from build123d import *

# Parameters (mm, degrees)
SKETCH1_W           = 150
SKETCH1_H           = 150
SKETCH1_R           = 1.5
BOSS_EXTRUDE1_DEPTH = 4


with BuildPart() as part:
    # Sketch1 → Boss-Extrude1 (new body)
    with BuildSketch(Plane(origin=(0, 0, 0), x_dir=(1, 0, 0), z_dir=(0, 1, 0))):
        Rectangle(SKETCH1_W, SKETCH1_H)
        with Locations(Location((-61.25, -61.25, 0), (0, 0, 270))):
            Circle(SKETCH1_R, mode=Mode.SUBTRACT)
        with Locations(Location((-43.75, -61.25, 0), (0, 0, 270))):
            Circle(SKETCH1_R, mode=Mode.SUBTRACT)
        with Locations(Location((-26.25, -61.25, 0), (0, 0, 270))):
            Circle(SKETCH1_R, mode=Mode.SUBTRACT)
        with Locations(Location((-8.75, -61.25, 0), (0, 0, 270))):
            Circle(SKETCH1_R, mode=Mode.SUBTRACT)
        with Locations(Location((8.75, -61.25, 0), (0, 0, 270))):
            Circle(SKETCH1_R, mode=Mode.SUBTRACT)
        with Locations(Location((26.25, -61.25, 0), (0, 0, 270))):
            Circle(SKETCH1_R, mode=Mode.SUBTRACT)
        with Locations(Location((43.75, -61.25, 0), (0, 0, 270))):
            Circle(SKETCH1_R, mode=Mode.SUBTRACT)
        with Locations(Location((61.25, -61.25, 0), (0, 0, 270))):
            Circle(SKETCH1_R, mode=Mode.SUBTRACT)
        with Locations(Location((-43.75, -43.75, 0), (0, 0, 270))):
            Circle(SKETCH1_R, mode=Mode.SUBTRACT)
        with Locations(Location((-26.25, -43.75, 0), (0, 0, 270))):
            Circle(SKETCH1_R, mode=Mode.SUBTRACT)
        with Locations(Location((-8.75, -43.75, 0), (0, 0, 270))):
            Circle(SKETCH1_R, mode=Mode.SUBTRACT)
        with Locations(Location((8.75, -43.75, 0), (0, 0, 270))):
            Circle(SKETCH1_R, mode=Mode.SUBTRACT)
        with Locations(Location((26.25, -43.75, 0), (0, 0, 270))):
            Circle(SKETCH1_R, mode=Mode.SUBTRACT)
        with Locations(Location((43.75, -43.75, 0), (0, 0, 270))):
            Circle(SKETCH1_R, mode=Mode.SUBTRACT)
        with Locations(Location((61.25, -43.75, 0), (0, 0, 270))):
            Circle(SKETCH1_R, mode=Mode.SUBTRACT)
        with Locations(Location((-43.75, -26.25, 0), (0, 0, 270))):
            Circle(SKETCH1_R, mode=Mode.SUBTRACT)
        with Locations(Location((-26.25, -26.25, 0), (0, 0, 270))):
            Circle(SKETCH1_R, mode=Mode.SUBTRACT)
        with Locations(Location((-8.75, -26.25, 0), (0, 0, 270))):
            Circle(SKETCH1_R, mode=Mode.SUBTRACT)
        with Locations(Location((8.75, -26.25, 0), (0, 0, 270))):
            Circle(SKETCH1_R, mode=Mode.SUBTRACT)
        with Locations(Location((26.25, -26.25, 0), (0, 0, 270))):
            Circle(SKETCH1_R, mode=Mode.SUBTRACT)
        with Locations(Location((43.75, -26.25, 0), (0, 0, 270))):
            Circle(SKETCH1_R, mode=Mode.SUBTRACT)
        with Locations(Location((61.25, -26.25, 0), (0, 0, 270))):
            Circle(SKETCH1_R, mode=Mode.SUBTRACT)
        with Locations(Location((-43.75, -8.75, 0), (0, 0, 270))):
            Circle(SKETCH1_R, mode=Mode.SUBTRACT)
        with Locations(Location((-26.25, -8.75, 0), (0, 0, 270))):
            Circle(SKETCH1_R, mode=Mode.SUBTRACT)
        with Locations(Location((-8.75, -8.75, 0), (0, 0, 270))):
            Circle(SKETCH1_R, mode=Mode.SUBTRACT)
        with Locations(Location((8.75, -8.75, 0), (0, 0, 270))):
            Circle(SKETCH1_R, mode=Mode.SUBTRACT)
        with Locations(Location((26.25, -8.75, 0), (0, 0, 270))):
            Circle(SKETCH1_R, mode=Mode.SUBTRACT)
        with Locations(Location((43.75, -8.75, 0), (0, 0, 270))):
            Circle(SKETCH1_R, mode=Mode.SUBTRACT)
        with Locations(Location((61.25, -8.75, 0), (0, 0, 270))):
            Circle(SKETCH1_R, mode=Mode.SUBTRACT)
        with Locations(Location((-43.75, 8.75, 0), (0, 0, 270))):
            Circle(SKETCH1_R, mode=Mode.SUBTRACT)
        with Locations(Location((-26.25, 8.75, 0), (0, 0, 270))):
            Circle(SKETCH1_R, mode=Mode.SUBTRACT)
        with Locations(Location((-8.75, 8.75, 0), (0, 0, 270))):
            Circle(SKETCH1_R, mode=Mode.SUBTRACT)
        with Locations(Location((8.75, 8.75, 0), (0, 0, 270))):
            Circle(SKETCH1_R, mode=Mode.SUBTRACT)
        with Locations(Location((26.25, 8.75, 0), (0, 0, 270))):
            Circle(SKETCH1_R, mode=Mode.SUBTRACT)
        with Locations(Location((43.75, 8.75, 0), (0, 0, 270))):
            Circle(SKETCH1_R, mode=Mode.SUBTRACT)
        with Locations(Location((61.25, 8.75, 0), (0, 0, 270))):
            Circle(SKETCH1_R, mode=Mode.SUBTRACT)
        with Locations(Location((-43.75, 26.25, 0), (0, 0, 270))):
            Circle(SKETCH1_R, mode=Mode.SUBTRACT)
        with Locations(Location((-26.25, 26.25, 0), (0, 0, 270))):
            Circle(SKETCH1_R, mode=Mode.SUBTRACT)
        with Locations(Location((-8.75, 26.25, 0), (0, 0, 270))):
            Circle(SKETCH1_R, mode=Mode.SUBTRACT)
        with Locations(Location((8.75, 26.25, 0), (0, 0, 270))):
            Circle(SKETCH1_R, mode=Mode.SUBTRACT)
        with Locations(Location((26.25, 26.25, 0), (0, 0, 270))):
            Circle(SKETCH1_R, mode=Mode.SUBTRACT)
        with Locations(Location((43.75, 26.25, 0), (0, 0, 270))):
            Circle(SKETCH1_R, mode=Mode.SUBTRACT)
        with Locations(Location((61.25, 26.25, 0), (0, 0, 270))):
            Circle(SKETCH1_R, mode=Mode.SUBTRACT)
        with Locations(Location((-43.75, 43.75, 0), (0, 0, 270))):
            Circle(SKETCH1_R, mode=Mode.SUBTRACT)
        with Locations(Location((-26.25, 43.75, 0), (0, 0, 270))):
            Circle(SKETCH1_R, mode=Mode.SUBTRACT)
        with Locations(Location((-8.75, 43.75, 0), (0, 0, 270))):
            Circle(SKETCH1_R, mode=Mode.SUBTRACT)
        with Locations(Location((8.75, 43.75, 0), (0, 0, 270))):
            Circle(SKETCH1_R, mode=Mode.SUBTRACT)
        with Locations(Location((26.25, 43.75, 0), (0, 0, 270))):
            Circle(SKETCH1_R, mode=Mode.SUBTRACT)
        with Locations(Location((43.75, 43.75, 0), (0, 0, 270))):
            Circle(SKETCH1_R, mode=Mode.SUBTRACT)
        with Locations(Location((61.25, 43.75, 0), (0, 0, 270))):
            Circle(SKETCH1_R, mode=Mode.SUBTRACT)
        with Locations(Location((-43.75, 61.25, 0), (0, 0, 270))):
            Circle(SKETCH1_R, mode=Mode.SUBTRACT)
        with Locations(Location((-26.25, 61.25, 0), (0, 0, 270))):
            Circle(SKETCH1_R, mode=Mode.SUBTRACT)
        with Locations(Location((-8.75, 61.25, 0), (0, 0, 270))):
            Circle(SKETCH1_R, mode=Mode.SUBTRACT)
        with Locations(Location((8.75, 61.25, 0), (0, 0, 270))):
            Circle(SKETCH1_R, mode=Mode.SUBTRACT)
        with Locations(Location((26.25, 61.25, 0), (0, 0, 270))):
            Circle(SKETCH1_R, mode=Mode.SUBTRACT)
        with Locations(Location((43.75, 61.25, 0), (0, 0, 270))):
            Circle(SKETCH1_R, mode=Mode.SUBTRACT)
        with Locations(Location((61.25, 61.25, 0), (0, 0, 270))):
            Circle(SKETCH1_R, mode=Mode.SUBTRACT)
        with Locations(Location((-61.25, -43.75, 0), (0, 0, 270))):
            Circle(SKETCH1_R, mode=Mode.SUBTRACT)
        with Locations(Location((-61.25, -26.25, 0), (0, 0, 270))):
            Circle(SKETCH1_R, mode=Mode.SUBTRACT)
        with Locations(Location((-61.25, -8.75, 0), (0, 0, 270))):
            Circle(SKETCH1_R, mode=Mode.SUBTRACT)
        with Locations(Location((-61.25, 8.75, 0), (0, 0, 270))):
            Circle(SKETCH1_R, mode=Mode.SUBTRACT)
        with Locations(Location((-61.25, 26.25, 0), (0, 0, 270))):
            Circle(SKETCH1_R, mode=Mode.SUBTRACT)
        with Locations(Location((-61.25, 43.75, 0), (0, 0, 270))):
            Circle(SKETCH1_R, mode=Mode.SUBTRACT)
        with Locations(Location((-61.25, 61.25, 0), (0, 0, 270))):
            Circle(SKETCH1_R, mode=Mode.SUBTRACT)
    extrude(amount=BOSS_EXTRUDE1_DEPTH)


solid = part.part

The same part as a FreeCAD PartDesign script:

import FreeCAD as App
import Part
import Sketcher

V = App.Vector
Q = App.Units.Quantity


def add_polygon(sketch, points):
    """Adds a closed chain of lines whose ends are joined by coincident constraints."""
    first, n = sketch.GeometryCount, len(points)
    for a, b in zip(points, points[1:] + points[:1]):
        sketch.addGeometry(Part.LineSegment(App.Vector(*a, 0), App.Vector(*b, 0)), False)
    for i in range(n):
        sketch.addConstraint(Sketcher.Constraint("Coincident", first + i, 2, first + (i + 1) % n, 1))

doc = App.newDocument("Part")
body = doc.addObject("PartDesign::Body", "Body")

sketch1 = body.newObject("Sketcher::SketchObject", "Sketch")
sketch1.AttachmentSupport = (doc.getObject("XZ_Plane"), [""])
sketch1.MapMode = "FlatFace"
add_polygon(sketch1, [(-75, -75), (-75, 75), (75, 75), (75, -75)])
sketch1.addGeometry(Part.Circle(V(-61.2, 61.2, 0), V(0, 0, 1), 1.5), False)
sketch1.addGeometry(Part.Circle(V(-43.8, 61.2, 0), V(0, 0, 1), 1.5), False)
sketch1.addGeometry(Part.Circle(V(-61.2, 43.8, 0), V(0, 0, 1), 1.5), False)
sketch1.addGeometry(Part.Circle(V(-43.8, 43.8, 0), V(0, 0, 1), 1.5), False)
sketch1.addGeometry(Part.Circle(V(-26.2, 61.2, 0), V(0, 0, 1), 1.5), False)
sketch1.addGeometry(Part.Circle(V(-8.8, 61.2, 0), V(0, 0, 1), 1.5), False)
sketch1.addGeometry(Part.Circle(V(-26.2, 43.8, 0), V(0, 0, 1), 1.5), False)
sketch1.addGeometry(Part.Circle(V(-8.8, 43.8, 0), V(0, 0, 1), 1.5), False)
sketch1.addGeometry(Part.Circle(V(-61.2, 26.2, 0), V(0, 0, 1), 1.5), False)
sketch1.addGeometry(Part.Circle(V(-43.8, 26.2, 0), V(0, 0, 1), 1.5), False)
sketch1.addGeometry(Part.Circle(V(-61.2, 8.8, 0), V(0, 0, 1), 1.5), False)
sketch1.addGeometry(Part.Circle(V(-43.8, 8.8, 0), V(0, 0, 1), 1.5), False)
sketch1.addGeometry(Part.Circle(V(-26.2, 26.2, 0), V(0, 0, 1), 1.5), False)
sketch1.addGeometry(Part.Circle(V(-8.8, 26.2, 0), V(0, 0, 1), 1.5), False)
sketch1.addGeometry(Part.Circle(V(-26.2, 8.8, 0), V(0, 0, 1), 1.5), False)
sketch1.addGeometry(Part.Circle(V(-8.8, 8.8, 0), V(0, 0, 1), 1.5), False)
sketch1.addGeometry(Part.Circle(V(8.8, 61.2, 0), V(0, 0, 1), 1.5), False)
sketch1.addGeometry(Part.Circle(V(26.2, 61.2, 0), V(0, 0, 1), 1.5), False)
sketch1.addGeometry(Part.Circle(V(8.8, 43.8, 0), V(0, 0, 1), 1.5), False)
sketch1.addGeometry(Part.Circle(V(26.2, 43.8, 0), V(0, 0, 1), 1.5), False)
sketch1.addGeometry(Part.Circle(V(43.8, 61.2, 0), V(0, 0, 1), 1.5), False)
sketch1.addGeometry(Part.Circle(V(61.2, 61.2, 0), V(0, 0, 1), 1.5), False)
sketch1.addGeometry(Part.Circle(V(43.8, 43.8, 0), V(0, 0, 1), 1.5), False)
sketch1.addGeometry(Part.Circle(V(61.2, 43.8, 0), V(0, 0, 1), 1.5), False)
sketch1.addGeometry(Part.Circle(V(8.8, 26.2, 0), V(0, 0, 1), 1.5), False)
sketch1.addGeometry(Part.Circle(V(26.2, 26.2, 0), V(0, 0, 1), 1.5), False)
sketch1.addGeometry(Part.Circle(V(8.8, 8.8, 0), V(0, 0, 1), 1.5), False)
sketch1.addGeometry(Part.Circle(V(26.2, 8.8, 0), V(0, 0, 1), 1.5), False)
sketch1.addGeometry(Part.Circle(V(43.8, 26.2, 0), V(0, 0, 1), 1.5), False)
sketch1.addGeometry(Part.Circle(V(61.2, 26.2, 0), V(0, 0, 1), 1.5), False)
sketch1.addGeometry(Part.Circle(V(43.8, 8.8, 0), V(0, 0, 1), 1.5), False)
sketch1.addGeometry(Part.Circle(V(61.2, 8.8, 0), V(0, 0, 1), 1.5), False)
sketch1.addGeometry(Part.Circle(V(-61.2, -8.8, 0), V(0, 0, 1), 1.5), False)
sketch1.addGeometry(Part.Circle(V(-43.8, -8.8, 0), V(0, 0, 1), 1.5), False)
sketch1.addGeometry(Part.Circle(V(-61.2, -26.2, 0), V(0, 0, 1), 1.5), False)
sketch1.addGeometry(Part.Circle(V(-43.8, -26.2, 0), V(0, 0, 1), 1.5), False)
sketch1.addGeometry(Part.Circle(V(-26.2, -8.8, 0), V(0, 0, 1), 1.5), False)
sketch1.addGeometry(Part.Circle(V(-8.8, -8.8, 0), V(0, 0, 1), 1.5), False)
sketch1.addGeometry(Part.Circle(V(-26.2, -26.2, 0), V(0, 0, 1), 1.5), False)
sketch1.addGeometry(Part.Circle(V(-8.8, -26.2, 0), V(0, 0, 1), 1.5), False)
sketch1.addGeometry(Part.Circle(V(-61.2, -43.8, 0), V(0, 0, 1), 1.5), False)
sketch1.addGeometry(Part.Circle(V(-43.8, -43.8, 0), V(0, 0, 1), 1.5), False)
sketch1.addGeometry(Part.Circle(V(-61.2, -61.2, 0), V(0, 0, 1), 1.5), False)
sketch1.addGeometry(Part.Circle(V(-43.8, -61.2, 0), V(0, 0, 1), 1.5), False)
sketch1.addGeometry(Part.Circle(V(-26.2, -43.8, 0), V(0, 0, 1), 1.5), False)
sketch1.addGeometry(Part.Circle(V(-8.8, -43.8, 0), V(0, 0, 1), 1.5), False)
sketch1.addGeometry(Part.Circle(V(-26.2, -61.2, 0), V(0, 0, 1), 1.5), False)
sketch1.addGeometry(Part.Circle(V(-8.8, -61.2, 0), V(0, 0, 1), 1.5), False)
sketch1.addGeometry(Part.Circle(V(8.8, -8.8, 0), V(0, 0, 1), 1.5), False)
sketch1.addGeometry(Part.Circle(V(26.2, -8.8, 0), V(0, 0, 1), 1.5), False)
sketch1.addGeometry(Part.Circle(V(8.8, -26.2, 0), V(0, 0, 1), 1.5), False)
sketch1.addGeometry(Part.Circle(V(26.2, -26.2, 0), V(0, 0, 1), 1.5), False)
sketch1.addGeometry(Part.Circle(V(43.8, -8.8, 0), V(0, 0, 1), 1.5), False)
sketch1.addGeometry(Part.Circle(V(61.2, -8.8, 0), V(0, 0, 1), 1.5), False)
sketch1.addGeometry(Part.Circle(V(43.8, -26.2, 0), V(0, 0, 1), 1.5), False)
sketch1.addGeometry(Part.Circle(V(61.2, -26.2, 0), V(0, 0, 1), 1.5), False)
sketch1.addGeometry(Part.Circle(V(8.8, -43.8, 0), V(0, 0, 1), 1.5), False)
sketch1.addGeometry(Part.Circle(V(26.2, -43.8, 0), V(0, 0, 1), 1.5), False)
sketch1.addGeometry(Part.Circle(V(8.8, -61.2, 0), V(0, 0, 1), 1.5), False)
sketch1.addGeometry(Part.Circle(V(26.2, -61.2, 0), V(0, 0, 1), 1.5), False)
sketch1.addGeometry(Part.Circle(V(43.8, -43.8, 0), V(0, 0, 1), 1.5), False)
sketch1.addGeometry(Part.Circle(V(61.2, -43.8, 0), V(0, 0, 1), 1.5), False)
sketch1.addGeometry(Part.Circle(V(43.8, -61.2, 0), V(0, 0, 1), 1.5), False)
sketch1.addGeometry(Part.Circle(V(61.2, -61.2, 0), V(0, 0, 1), 1.5), False)
sketch1.addConstraint(Sketcher.Constraint("Vertical", 0))
sketch1.addConstraint(Sketcher.Constraint("Horizontal", 1))
sketch1.addConstraint(Sketcher.Constraint("Vertical", 2))
sketch1.addConstraint(Sketcher.Constraint("Horizontal", 3))
sketch1.addConstraint(Sketcher.Constraint("Equal", 4, 5))
sketch1.addConstraint(Sketcher.Constraint("Equal", 5, 6))
sketch1.addConstraint(Sketcher.Constraint("Equal", 6, 7))
sketch1.addConstraint(Sketcher.Constraint("Equal", 7, 8))
sketch1.addConstraint(Sketcher.Constraint("Equal", 8, 9))
sketch1.addConstraint(Sketcher.Constraint("Equal", 9, 10))
sketch1.addConstraint(Sketcher.Constraint("Equal", 10, 11))
sketch1.addConstraint(Sketcher.Constraint("Equal", 11, 12))
sketch1.addConstraint(Sketcher.Constraint("Equal", 12, 13))
sketch1.addConstraint(Sketcher.Constraint("Equal", 13, 14))
sketch1.addConstraint(Sketcher.Constraint("Equal", 14, 15))
sketch1.addConstraint(Sketcher.Constraint("Equal", 15, 16))
sketch1.addConstraint(Sketcher.Constraint("Equal", 16, 17))
sketch1.addConstraint(Sketcher.Constraint("Equal", 17, 18))
sketch1.addConstraint(Sketcher.Constraint("Equal", 18, 19))
sketch1.addConstraint(Sketcher.Constraint("Equal", 19, 20))
sketch1.addConstraint(Sketcher.Constraint("Equal", 20, 21))
sketch1.addConstraint(Sketcher.Constraint("Equal", 21, 22))
sketch1.addConstraint(Sketcher.Constraint("Equal", 22, 23))
sketch1.addConstraint(Sketcher.Constraint("Equal", 23, 24))
sketch1.addConstraint(Sketcher.Constraint("Equal", 24, 25))
sketch1.addConstraint(Sketcher.Constraint("Equal", 25, 26))
sketch1.addConstraint(Sketcher.Constraint("Equal", 26, 27))
sketch1.addConstraint(Sketcher.Constraint("Equal", 27, 28))
sketch1.addConstraint(Sketcher.Constraint("Equal", 28, 29))
sketch1.addConstraint(Sketcher.Constraint("Equal", 29, 30))
sketch1.addConstraint(Sketcher.Constraint("Equal", 30, 31))
sketch1.addConstraint(Sketcher.Constraint("Equal", 31, 32))
sketch1.addConstraint(Sketcher.Constraint("Equal", 32, 33))
sketch1.addConstraint(Sketcher.Constraint("Equal", 33, 34))
sketch1.addConstraint(Sketcher.Constraint("Equal", 34, 35))
sketch1.addConstraint(Sketcher.Constraint("Equal", 35, 36))
sketch1.addConstraint(Sketcher.Constraint("Equal", 36, 37))
sketch1.addConstraint(Sketcher.Constraint("Equal", 37, 38))
sketch1.addConstraint(Sketcher.Constraint("Equal", 38, 39))
sketch1.addConstraint(Sketcher.Constraint("Equal", 39, 40))
sketch1.addConstraint(Sketcher.Constraint("Equal", 40, 41))
sketch1.addConstraint(Sketcher.Constraint("Equal", 41, 42))
sketch1.addConstraint(Sketcher.Constraint("Equal", 42, 43))
sketch1.addConstraint(Sketcher.Constraint("Equal", 43, 44))
sketch1.addConstraint(Sketcher.Constraint("Equal", 44, 45))
sketch1.addConstraint(Sketcher.Constraint("Equal", 45, 46))
sketch1.addConstraint(Sketcher.Constraint("Equal", 46, 47))
sketch1.addConstraint(Sketcher.Constraint("Equal", 47, 48))
sketch1.addConstraint(Sketcher.Constraint("Equal", 48, 49))
sketch1.addConstraint(Sketcher.Constraint("Equal", 49, 50))
sketch1.addConstraint(Sketcher.Constraint("Equal", 50, 51))
sketch1.addConstraint(Sketcher.Constraint("Equal", 51, 52))
sketch1.addConstraint(Sketcher.Constraint("Equal", 52, 53))
sketch1.addConstraint(Sketcher.Constraint("Equal", 53, 54))
sketch1.addConstraint(Sketcher.Constraint("Equal", 54, 55))
sketch1.addConstraint(Sketcher.Constraint("Equal", 55, 56))
sketch1.addConstraint(Sketcher.Constraint("Equal", 56, 57))
sketch1.addConstraint(Sketcher.Constraint("Equal", 57, 58))
sketch1.addConstraint(Sketcher.Constraint("Equal", 58, 59))
sketch1.addConstraint(Sketcher.Constraint("Equal", 59, 60))
sketch1.addConstraint(Sketcher.Constraint("Equal", 60, 61))
sketch1.addConstraint(Sketcher.Constraint("Equal", 61, 62))
sketch1.addConstraint(Sketcher.Constraint("Equal", 62, 63))
sketch1.addConstraint(Sketcher.Constraint("Equal", 63, 64))
sketch1.addConstraint(Sketcher.Constraint("Equal", 64, 65))
sketch1.addConstraint(Sketcher.Constraint("Equal", 65, 66))
sketch1.addConstraint(Sketcher.Constraint("Equal", 66, 67))
sketch1.addConstraint(Sketcher.Constraint("Symmetric", 35, 3, 36, 3, -1, 1))
sketch1.addConstraint(Sketcher.Constraint("Symmetric", 34, 3, 37, 3, -1, 1))
sketch1.addConstraint(Sketcher.Constraint("Symmetric", 33, 3, 38, 3, -1, 1))
sketch1.addConstraint(Sketcher.Constraint("Symmetric", 32, 3, 39, 3, -1, 1))
sketch1.addConstraint(Sketcher.Constraint("Symmetric", 31, 3, 40, 3, -1, 1))
sketch1.addConstraint(Sketcher.Constraint("Symmetric", 30, 3, 41, 3, -1, 1))
sketch1.addConstraint(Sketcher.Constraint("Symmetric", 29, 3, 42, 3, -1, 1))
sketch1.addConstraint(Sketcher.Constraint("Symmetric", 28, 3, 43, 3, -1, 1))
sketch1.addConstraint(Sketcher.Constraint("Symmetric", 27, 3, 44, 3, -1, 1))
sketch1.addConstraint(Sketcher.Constraint("Symmetric", 26, 3, 45, 3, -1, 1))
sketch1.addConstraint(Sketcher.Constraint("Symmetric", 25, 3, 46, 3, -1, 1))
sketch1.addConstraint(Sketcher.Constraint("Symmetric", 24, 3, 47, 3, -1, 1))
sketch1.addConstraint(Sketcher.Constraint("Symmetric", 23, 3, 48, 3, -1, 1))
sketch1.addConstraint(Sketcher.Constraint("Symmetric", 22, 3, 49, 3, -1, 1))
sketch1.addConstraint(Sketcher.Constraint("Symmetric", 21, 3, 50, 3, -1, 1))
sketch1.addConstraint(Sketcher.Constraint("Symmetric", 20, 3, 51, 3, -1, 1))
sketch1.addConstraint(Sketcher.Constraint("Symmetric", 19, 3, 52, 3, -1, 1))
sketch1.addConstraint(Sketcher.Constraint("Symmetric", 18, 3, 53, 3, -1, 1))
sketch1.addConstraint(Sketcher.Constraint("Symmetric", 17, 3, 54, 3, -1, 1))
sketch1.addConstraint(Sketcher.Constraint("Symmetric", 16, 3, 55, 3, -1, 1))
sketch1.addConstraint(Sketcher.Constraint("Symmetric", 15, 3, 56, 3, -1, 1))
sketch1.addConstraint(Sketcher.Constraint("Symmetric", 14, 3, 57, 3, -1, 1))
sketch1.addConstraint(Sketcher.Constraint("Symmetric", 13, 3, 58, 3, -1, 1))
sketch1.addConstraint(Sketcher.Constraint("Symmetric", 12, 3, 59, 3, -1, 1))
sketch1.addConstraint(Sketcher.Constraint("Symmetric", 11, 3, 60, 3, -1, 1))
sketch1.addConstraint(Sketcher.Constraint("Symmetric", 10, 3, 61, 3, -1, 1))
sketch1.addConstraint(Sketcher.Constraint("Symmetric", 9, 3, 62, 3, -1, 1))
sketch1.addConstraint(Sketcher.Constraint("Symmetric", 8, 3, 63, 3, -1, 1))
sketch1.addConstraint(Sketcher.Constraint("Symmetric", 7, 3, 64, 3, -1, 1))
sketch1.addConstraint(Sketcher.Constraint("Symmetric", 6, 3, 65, 3, -1, 1))
sketch1.addConstraint(Sketcher.Constraint("Symmetric", 5, 3, 66, 3, -1, 1))
sketch1.addConstraint(Sketcher.Constraint("Symmetric", 4, 3, 67, 3, -1, 1))
sketch1.addConstraint(Sketcher.Constraint("Symmetric", 0, 2, 2, 2, -1, 1))
sketch1.addConstraint(Sketcher.Constraint("Symmetric", 9, 3, 20, 3, -2))
sketch1.addConstraint(Sketcher.Constraint("Symmetric", 8, 3, 21, 3, -2))
sketch1.addConstraint(Sketcher.Constraint("Symmetric", 11, 3, 22, 3, -2))
sketch1.addConstraint(Sketcher.Constraint("Symmetric", 10, 3, 23, 3, -2))
sketch1.addConstraint(Sketcher.Constraint("Symmetric", 5, 3, 24, 3, -2))
sketch1.addConstraint(Sketcher.Constraint("Symmetric", 4, 3, 25, 3, -2))
sketch1.addConstraint(Sketcher.Constraint("Symmetric", 7, 3, 26, 3, -2))
sketch1.addConstraint(Sketcher.Constraint("Symmetric", 6, 3, 27, 3, -2))
sketch1.addConstraint(Sketcher.Constraint("Symmetric", 17, 3, 28, 3, -2))
sketch1.addConstraint(Sketcher.Constraint("Symmetric", 16, 3, 29, 3, -2))
sketch1.addConstraint(Sketcher.Constraint("Symmetric", 19, 3, 30, 3, -2))
sketch1.addConstraint(Sketcher.Constraint("Symmetric", 18, 3, 31, 3, -2))
sketch1.addConstraint(Sketcher.Constraint("Symmetric", 13, 3, 32, 3, -2))
sketch1.addConstraint(Sketcher.Constraint("Symmetric", 12, 3, 33, 3, -2))
sketch1.addConstraint(Sketcher.Constraint("Symmetric", 15, 3, 34, 3, -2))
sketch1.addConstraint(Sketcher.Constraint("Symmetric", 14, 3, 35, 3, -2))
sketch1.addConstraint(Sketcher.Constraint("Horizontal", 4, 3, 5, 3))
sketch1.addConstraint(Sketcher.Constraint("Horizontal", 6, 3, 7, 3))
sketch1.addConstraint(Sketcher.Constraint("Horizontal", 5, 3, 8, 3))
sketch1.addConstraint(Sketcher.Constraint("Horizontal", 8, 3, 9, 3))
sketch1.addConstraint(Sketcher.Constraint("Horizontal", 7, 3, 10, 3))
sketch1.addConstraint(Sketcher.Constraint("Horizontal", 10, 3, 11, 3))
sketch1.addConstraint(Sketcher.Constraint("Horizontal", 12, 3, 13, 3))
sketch1.addConstraint(Sketcher.Constraint("Horizontal", 14, 3, 15, 3))
sketch1.addConstraint(Sketcher.Constraint("Horizontal", 13, 3, 16, 3))
sketch1.addConstraint(Sketcher.Constraint("Horizontal", 16, 3, 17, 3))
sketch1.addConstraint(Sketcher.Constraint("Horizontal", 15, 3, 18, 3))
sketch1.addConstraint(Sketcher.Constraint("Horizontal", 18, 3, 19, 3))
sketch1.addConstraint(Sketcher.Constraint("Vertical", 4, 3, 6, 3))
sketch1.addConstraint(Sketcher.Constraint("Vertical", 5, 3, 7, 3))
sketch1.addConstraint(Sketcher.Constraint("Vertical", 8, 3, 10, 3))
sketch1.addConstraint(Sketcher.Constraint("Vertical", 9, 3, 11, 3))
sketch1.addConstraint(Sketcher.Constraint("Vertical", 6, 3, 12, 3))
sketch1.addConstraint(Sketcher.Constraint("Vertical", 7, 3, 13, 3))
sketch1.addConstraint(Sketcher.Constraint("Vertical", 12, 3, 14, 3))
sketch1.addConstraint(Sketcher.Constraint("Vertical", 13, 3, 15, 3))
sketch1.addConstraint(Sketcher.Constraint("Vertical", 10, 3, 16, 3))
sketch1.addConstraint(Sketcher.Constraint("Vertical", 11, 3, 17, 3))
sketch1.addConstraint(Sketcher.Constraint("Vertical", 16, 3, 18, 3))
sketch1.addConstraint(Sketcher.Constraint("Vertical", 17, 3, 19, 3))
sketch1.addConstraint(Sketcher.Constraint("Equal", 3, 0))
sketch1.addConstraint(Sketcher.Constraint("Diameter", 4, Q("3 mm")))
sketch1.addConstraint(Sketcher.Constraint("DistanceX", 1, 1, 1, 2, Q("150 mm")))
sketch1.addConstraint(Sketcher.Constraint("DistanceX", 4, 3, -1, 1, Q("61.25 mm")))
sketch1.addConstraint(Sketcher.Constraint("DistanceY", -1, 1, 4, 3, Q("61.25 mm")))
sketch1.addConstraint(Sketcher.Constraint("DistanceX", 5, 3, -1, 1, Q("43.75 mm")))
sketch1.addConstraint(Sketcher.Constraint("DistanceY", -1, 1, 6, 3, Q("43.75 mm")))
sketch1.addConstraint(Sketcher.Constraint("DistanceX", 8, 3, -1, 1, Q("26.25 mm")))
sketch1.addConstraint(Sketcher.Constraint("DistanceX", 9, 3, -1, 1, Q("8.75 mm")))
sketch1.addConstraint(Sketcher.Constraint("DistanceY", -1, 1, 12, 3, Q("26.25 mm")))
sketch1.addConstraint(Sketcher.Constraint("DistanceY", -1, 1, 14, 3, Q("8.75 mm")))
pad1 = body.newObject("PartDesign::Pad", "Pad")
pad1.Profile = sketch1
pad1.Length = 4
pad1.Reversed = True

doc.recompute()
